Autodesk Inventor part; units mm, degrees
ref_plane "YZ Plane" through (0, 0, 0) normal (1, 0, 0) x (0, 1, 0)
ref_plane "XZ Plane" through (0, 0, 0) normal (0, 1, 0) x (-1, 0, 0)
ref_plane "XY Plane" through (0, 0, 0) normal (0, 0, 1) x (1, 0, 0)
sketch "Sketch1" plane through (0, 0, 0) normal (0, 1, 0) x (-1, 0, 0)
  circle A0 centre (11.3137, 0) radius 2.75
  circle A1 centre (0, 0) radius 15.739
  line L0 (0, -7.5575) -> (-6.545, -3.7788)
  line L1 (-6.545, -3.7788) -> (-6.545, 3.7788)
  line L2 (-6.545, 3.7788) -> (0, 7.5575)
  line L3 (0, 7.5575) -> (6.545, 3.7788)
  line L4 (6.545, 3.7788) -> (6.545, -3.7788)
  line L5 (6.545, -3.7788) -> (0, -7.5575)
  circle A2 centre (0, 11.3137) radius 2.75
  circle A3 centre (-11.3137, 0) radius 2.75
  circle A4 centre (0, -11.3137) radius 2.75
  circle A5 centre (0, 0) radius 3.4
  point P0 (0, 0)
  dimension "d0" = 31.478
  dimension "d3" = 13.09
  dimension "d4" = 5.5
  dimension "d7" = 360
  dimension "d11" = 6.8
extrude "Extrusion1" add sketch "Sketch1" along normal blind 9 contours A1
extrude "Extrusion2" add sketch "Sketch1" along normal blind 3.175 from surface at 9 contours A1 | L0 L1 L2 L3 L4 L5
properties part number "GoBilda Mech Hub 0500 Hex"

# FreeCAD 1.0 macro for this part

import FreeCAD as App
import Part
import Sketcher

V = App.Vector
Q = App.Units.Quantity

doc = App.newDocument("Part")
params = doc.addObject("Spreadsheet::Sheet", "Params")
for row, (alias, value) in enumerate([
    ("sketch1_diameter", "5.5 mm"),
    ("pad1_length", "9 mm"),
    ("sketch2_diameter", "5.5 mm"),
    ("sketch2_diameter2", "6.8 mm"),
    ("pad2_length", "3.175 mm"),
], start=1):
    params.set(f"A{row}", alias)
    params.set(f"B{row}", "=" + value)
    params.setAlias(f"B{row}", alias)

body = doc.addObject("PartDesign::Body", "Body")

# Sketch on XZ plane
sketch1 = doc.addObject("Sketcher::SketchObject", "Sketch")
body.addObject(sketch1)
sketch1.AttachmentSupport = (doc.XZ_Plane, [""])
sketch1.MapMode = "FlatFace"
sketch1.addGeometry([
    Part.Circle(V(0, 0, 0), V(0, 0, 1), 15.739),  # 0
    Part.Circle(V(0, -11.3137, 0), V(0, 0, 1), 2.75),  # 1
    Part.Circle(V(11.3137, 0, 0), V(0, 0, 1), 2.75),  # 2
    Part.LineSegment(V(-6.545, -3.7788, 0), V(0, -7.5575, 0)),  # 3
    Part.LineSegment(V(0, -7.5575, 0), V(6.545, -3.7788, 0)),  # 4
    Part.LineSegment(V(6.545, -3.7788, 0), V(6.545, 3.7788, 0)),  # 5
    Part.LineSegment(V(6.545, 3.7788, 0), V(0, 7.5575, 0)),  # 6
    Part.LineSegment(V(0, 7.5575, 0), V(-6.545, 3.7788, 0)),  # 7
    Part.LineSegment(V(-6.545, 3.7788, 0), V(-6.545, -3.7788, 0)),  # 8
    Part.Circle(V(-11.3137, 0, 0), V(0, 0, 1), 2.75),  # 9
    Part.Circle(V(0, 11.3137, 0), V(0, 0, 1), 2.75),  # 10
], False)
sketch1.addConstraint([
    Sketcher.Constraint("Coincident", 3, 2, 4, 1),
    Sketcher.Constraint("Coincident", 4, 2, 5, 1),
    Sketcher.Constraint("Coincident", 5, 2, 6, 1),
    Sketcher.Constraint("Coincident", 6, 2, 7, 1),
    Sketcher.Constraint("Coincident", 7, 2, 8, 1),
    Sketcher.Constraint("Coincident", 8, 2, 3, 1),
    Sketcher.Constraint("Vertical", 5),
    Sketcher.Constraint("Vertical", 8),
    Sketcher.Constraint("Coincident", 0, 3, -1, 1),
    Sketcher.Constraint("Equal", 1, 2),
    Sketcher.Constraint("Equal", 2, 9),
    Sketcher.Constraint("Equal", 9, 10),
    Sketcher.Constraint("Symmetric", 2, 3, 9, 3, -1, 1),
    Sketcher.Constraint("Symmetric", 1, 3, 10, 3, -1, 1),
    Sketcher.Constraint("Symmetric", 3, 2, 6, 2, -1, 1),
    Sketcher.Constraint("Symmetric", 4, 2, 7, 2, -1, 1),
    Sketcher.Constraint("PointOnObject", 1, 3, -2),
    Sketcher.Constraint("PointOnObject", 2, 3, -1),
    Sketcher.Constraint("PointOnObject", 3, 2, -2),
    Sketcher.Constraint("Parallel", 3, 6),
    Sketcher.Constraint("Horizontal", 5, 2, 7, 2),
    Sketcher.Constraint("Diameter", 1, 5.5),
    Sketcher.Constraint("Diameter", 0, 31.478),
    Sketcher.Constraint("Angle", 3, Q("-29.9996 deg")),
    Sketcher.Constraint("DistanceX", 7, 2, 5, 2, 13.09),
    Sketcher.Constraint("DistanceY", 5, 1, 5, 2, 7.5576),
    Sketcher.Constraint("DistanceY", 1, 3, 4, 2, 7.535),
    Sketcher.Constraint("DistanceX", -1, 1, 2, 3, 11.3137),
])
sketch1.setExpression("Constraints[21]", "Params.sketch1_diameter")
pad1 = doc.addObject("PartDesign::Pad", "Pad")
body.addObject(pad1)
pad1.Profile = sketch1
pad1.setExpression("Length", "Params.pad1_length")
pad1.Reversed = True

# Sketch on XZ plane
sketch2 = doc.addObject("Sketcher::SketchObject", "Sketch001")
body.addObject(sketch2)
sketch2.AttachmentSupport = (doc.XZ_Plane, [""])
sketch2.MapMode = "FlatFace"
sketch2.AttachmentOffset = App.Placement(V(0, 0, -9), App.Rotation())
sketch2.addGeometry([
    Part.Circle(V(0, 0, 0), V(0, 0, 1), 15.739),  # 0
    Part.Circle(V(0, -11.3137, 0), V(0, 0, 1), 2.75),  # 1
    Part.Circle(V(11.3137, 0, 0), V(0, 0, 1), 2.75),  # 2
    Part.Circle(V(-11.3137, 0, 0), V(0, 0, 1), 2.75),  # 3
    Part.Circle(V(0, 11.3137, 0), V(0, 0, 1), 2.75),  # 4
    Part.Circle(V(0, 0, 0), V(0, 0, 1), 3.4),  # 5
], False)
sketch2.addConstraint([
    Sketcher.Constraint("Coincident", 0, 3, -1, 1),
    Sketcher.Constraint("Coincident", 5, 3, -1, 1),
    Sketcher.Constraint("Equal", 1, 2),
    Sketcher.Constraint("Equal", 2, 3),
    Sketcher.Constraint("Equal", 3, 4),
    Sketcher.Constraint("Symmetric", 2, 3, 3, 3, -1, 1),
    Sketcher.Constraint("Symmetric", 1, 3, 4, 3, -1, 1),
    Sketcher.Constraint("PointOnObject", 1, 3, -2),
    Sketcher.Constraint("PointOnObject", 2, 3, -1),
    Sketcher.Constraint("Diameter", 1, 5.5),
    Sketcher.Constraint("Diameter", 5, 6.8),
    Sketcher.Constraint("Diameter", 0, 31.478),
    Sketcher.Constraint("DistanceY", 1, 3, -1, 1, 11.3137),
    Sketcher.Constraint("DistanceX", -1, 1, 2, 3, 11.3137),
])
sketch2.setExpression("Constraints[9]", "Params.sketch2_diameter")
sketch2.setExpression("Constraints[10]", "Params.sketch2_diameter2")
pad2 = doc.addObject("PartDesign::Pad", "Pad001")
body.addObject(pad2)
pad2.Profile = sketch2
pad2.setExpression("Length", "Params.pad2_length")
pad2.Reversed = True

doc.recompute()
